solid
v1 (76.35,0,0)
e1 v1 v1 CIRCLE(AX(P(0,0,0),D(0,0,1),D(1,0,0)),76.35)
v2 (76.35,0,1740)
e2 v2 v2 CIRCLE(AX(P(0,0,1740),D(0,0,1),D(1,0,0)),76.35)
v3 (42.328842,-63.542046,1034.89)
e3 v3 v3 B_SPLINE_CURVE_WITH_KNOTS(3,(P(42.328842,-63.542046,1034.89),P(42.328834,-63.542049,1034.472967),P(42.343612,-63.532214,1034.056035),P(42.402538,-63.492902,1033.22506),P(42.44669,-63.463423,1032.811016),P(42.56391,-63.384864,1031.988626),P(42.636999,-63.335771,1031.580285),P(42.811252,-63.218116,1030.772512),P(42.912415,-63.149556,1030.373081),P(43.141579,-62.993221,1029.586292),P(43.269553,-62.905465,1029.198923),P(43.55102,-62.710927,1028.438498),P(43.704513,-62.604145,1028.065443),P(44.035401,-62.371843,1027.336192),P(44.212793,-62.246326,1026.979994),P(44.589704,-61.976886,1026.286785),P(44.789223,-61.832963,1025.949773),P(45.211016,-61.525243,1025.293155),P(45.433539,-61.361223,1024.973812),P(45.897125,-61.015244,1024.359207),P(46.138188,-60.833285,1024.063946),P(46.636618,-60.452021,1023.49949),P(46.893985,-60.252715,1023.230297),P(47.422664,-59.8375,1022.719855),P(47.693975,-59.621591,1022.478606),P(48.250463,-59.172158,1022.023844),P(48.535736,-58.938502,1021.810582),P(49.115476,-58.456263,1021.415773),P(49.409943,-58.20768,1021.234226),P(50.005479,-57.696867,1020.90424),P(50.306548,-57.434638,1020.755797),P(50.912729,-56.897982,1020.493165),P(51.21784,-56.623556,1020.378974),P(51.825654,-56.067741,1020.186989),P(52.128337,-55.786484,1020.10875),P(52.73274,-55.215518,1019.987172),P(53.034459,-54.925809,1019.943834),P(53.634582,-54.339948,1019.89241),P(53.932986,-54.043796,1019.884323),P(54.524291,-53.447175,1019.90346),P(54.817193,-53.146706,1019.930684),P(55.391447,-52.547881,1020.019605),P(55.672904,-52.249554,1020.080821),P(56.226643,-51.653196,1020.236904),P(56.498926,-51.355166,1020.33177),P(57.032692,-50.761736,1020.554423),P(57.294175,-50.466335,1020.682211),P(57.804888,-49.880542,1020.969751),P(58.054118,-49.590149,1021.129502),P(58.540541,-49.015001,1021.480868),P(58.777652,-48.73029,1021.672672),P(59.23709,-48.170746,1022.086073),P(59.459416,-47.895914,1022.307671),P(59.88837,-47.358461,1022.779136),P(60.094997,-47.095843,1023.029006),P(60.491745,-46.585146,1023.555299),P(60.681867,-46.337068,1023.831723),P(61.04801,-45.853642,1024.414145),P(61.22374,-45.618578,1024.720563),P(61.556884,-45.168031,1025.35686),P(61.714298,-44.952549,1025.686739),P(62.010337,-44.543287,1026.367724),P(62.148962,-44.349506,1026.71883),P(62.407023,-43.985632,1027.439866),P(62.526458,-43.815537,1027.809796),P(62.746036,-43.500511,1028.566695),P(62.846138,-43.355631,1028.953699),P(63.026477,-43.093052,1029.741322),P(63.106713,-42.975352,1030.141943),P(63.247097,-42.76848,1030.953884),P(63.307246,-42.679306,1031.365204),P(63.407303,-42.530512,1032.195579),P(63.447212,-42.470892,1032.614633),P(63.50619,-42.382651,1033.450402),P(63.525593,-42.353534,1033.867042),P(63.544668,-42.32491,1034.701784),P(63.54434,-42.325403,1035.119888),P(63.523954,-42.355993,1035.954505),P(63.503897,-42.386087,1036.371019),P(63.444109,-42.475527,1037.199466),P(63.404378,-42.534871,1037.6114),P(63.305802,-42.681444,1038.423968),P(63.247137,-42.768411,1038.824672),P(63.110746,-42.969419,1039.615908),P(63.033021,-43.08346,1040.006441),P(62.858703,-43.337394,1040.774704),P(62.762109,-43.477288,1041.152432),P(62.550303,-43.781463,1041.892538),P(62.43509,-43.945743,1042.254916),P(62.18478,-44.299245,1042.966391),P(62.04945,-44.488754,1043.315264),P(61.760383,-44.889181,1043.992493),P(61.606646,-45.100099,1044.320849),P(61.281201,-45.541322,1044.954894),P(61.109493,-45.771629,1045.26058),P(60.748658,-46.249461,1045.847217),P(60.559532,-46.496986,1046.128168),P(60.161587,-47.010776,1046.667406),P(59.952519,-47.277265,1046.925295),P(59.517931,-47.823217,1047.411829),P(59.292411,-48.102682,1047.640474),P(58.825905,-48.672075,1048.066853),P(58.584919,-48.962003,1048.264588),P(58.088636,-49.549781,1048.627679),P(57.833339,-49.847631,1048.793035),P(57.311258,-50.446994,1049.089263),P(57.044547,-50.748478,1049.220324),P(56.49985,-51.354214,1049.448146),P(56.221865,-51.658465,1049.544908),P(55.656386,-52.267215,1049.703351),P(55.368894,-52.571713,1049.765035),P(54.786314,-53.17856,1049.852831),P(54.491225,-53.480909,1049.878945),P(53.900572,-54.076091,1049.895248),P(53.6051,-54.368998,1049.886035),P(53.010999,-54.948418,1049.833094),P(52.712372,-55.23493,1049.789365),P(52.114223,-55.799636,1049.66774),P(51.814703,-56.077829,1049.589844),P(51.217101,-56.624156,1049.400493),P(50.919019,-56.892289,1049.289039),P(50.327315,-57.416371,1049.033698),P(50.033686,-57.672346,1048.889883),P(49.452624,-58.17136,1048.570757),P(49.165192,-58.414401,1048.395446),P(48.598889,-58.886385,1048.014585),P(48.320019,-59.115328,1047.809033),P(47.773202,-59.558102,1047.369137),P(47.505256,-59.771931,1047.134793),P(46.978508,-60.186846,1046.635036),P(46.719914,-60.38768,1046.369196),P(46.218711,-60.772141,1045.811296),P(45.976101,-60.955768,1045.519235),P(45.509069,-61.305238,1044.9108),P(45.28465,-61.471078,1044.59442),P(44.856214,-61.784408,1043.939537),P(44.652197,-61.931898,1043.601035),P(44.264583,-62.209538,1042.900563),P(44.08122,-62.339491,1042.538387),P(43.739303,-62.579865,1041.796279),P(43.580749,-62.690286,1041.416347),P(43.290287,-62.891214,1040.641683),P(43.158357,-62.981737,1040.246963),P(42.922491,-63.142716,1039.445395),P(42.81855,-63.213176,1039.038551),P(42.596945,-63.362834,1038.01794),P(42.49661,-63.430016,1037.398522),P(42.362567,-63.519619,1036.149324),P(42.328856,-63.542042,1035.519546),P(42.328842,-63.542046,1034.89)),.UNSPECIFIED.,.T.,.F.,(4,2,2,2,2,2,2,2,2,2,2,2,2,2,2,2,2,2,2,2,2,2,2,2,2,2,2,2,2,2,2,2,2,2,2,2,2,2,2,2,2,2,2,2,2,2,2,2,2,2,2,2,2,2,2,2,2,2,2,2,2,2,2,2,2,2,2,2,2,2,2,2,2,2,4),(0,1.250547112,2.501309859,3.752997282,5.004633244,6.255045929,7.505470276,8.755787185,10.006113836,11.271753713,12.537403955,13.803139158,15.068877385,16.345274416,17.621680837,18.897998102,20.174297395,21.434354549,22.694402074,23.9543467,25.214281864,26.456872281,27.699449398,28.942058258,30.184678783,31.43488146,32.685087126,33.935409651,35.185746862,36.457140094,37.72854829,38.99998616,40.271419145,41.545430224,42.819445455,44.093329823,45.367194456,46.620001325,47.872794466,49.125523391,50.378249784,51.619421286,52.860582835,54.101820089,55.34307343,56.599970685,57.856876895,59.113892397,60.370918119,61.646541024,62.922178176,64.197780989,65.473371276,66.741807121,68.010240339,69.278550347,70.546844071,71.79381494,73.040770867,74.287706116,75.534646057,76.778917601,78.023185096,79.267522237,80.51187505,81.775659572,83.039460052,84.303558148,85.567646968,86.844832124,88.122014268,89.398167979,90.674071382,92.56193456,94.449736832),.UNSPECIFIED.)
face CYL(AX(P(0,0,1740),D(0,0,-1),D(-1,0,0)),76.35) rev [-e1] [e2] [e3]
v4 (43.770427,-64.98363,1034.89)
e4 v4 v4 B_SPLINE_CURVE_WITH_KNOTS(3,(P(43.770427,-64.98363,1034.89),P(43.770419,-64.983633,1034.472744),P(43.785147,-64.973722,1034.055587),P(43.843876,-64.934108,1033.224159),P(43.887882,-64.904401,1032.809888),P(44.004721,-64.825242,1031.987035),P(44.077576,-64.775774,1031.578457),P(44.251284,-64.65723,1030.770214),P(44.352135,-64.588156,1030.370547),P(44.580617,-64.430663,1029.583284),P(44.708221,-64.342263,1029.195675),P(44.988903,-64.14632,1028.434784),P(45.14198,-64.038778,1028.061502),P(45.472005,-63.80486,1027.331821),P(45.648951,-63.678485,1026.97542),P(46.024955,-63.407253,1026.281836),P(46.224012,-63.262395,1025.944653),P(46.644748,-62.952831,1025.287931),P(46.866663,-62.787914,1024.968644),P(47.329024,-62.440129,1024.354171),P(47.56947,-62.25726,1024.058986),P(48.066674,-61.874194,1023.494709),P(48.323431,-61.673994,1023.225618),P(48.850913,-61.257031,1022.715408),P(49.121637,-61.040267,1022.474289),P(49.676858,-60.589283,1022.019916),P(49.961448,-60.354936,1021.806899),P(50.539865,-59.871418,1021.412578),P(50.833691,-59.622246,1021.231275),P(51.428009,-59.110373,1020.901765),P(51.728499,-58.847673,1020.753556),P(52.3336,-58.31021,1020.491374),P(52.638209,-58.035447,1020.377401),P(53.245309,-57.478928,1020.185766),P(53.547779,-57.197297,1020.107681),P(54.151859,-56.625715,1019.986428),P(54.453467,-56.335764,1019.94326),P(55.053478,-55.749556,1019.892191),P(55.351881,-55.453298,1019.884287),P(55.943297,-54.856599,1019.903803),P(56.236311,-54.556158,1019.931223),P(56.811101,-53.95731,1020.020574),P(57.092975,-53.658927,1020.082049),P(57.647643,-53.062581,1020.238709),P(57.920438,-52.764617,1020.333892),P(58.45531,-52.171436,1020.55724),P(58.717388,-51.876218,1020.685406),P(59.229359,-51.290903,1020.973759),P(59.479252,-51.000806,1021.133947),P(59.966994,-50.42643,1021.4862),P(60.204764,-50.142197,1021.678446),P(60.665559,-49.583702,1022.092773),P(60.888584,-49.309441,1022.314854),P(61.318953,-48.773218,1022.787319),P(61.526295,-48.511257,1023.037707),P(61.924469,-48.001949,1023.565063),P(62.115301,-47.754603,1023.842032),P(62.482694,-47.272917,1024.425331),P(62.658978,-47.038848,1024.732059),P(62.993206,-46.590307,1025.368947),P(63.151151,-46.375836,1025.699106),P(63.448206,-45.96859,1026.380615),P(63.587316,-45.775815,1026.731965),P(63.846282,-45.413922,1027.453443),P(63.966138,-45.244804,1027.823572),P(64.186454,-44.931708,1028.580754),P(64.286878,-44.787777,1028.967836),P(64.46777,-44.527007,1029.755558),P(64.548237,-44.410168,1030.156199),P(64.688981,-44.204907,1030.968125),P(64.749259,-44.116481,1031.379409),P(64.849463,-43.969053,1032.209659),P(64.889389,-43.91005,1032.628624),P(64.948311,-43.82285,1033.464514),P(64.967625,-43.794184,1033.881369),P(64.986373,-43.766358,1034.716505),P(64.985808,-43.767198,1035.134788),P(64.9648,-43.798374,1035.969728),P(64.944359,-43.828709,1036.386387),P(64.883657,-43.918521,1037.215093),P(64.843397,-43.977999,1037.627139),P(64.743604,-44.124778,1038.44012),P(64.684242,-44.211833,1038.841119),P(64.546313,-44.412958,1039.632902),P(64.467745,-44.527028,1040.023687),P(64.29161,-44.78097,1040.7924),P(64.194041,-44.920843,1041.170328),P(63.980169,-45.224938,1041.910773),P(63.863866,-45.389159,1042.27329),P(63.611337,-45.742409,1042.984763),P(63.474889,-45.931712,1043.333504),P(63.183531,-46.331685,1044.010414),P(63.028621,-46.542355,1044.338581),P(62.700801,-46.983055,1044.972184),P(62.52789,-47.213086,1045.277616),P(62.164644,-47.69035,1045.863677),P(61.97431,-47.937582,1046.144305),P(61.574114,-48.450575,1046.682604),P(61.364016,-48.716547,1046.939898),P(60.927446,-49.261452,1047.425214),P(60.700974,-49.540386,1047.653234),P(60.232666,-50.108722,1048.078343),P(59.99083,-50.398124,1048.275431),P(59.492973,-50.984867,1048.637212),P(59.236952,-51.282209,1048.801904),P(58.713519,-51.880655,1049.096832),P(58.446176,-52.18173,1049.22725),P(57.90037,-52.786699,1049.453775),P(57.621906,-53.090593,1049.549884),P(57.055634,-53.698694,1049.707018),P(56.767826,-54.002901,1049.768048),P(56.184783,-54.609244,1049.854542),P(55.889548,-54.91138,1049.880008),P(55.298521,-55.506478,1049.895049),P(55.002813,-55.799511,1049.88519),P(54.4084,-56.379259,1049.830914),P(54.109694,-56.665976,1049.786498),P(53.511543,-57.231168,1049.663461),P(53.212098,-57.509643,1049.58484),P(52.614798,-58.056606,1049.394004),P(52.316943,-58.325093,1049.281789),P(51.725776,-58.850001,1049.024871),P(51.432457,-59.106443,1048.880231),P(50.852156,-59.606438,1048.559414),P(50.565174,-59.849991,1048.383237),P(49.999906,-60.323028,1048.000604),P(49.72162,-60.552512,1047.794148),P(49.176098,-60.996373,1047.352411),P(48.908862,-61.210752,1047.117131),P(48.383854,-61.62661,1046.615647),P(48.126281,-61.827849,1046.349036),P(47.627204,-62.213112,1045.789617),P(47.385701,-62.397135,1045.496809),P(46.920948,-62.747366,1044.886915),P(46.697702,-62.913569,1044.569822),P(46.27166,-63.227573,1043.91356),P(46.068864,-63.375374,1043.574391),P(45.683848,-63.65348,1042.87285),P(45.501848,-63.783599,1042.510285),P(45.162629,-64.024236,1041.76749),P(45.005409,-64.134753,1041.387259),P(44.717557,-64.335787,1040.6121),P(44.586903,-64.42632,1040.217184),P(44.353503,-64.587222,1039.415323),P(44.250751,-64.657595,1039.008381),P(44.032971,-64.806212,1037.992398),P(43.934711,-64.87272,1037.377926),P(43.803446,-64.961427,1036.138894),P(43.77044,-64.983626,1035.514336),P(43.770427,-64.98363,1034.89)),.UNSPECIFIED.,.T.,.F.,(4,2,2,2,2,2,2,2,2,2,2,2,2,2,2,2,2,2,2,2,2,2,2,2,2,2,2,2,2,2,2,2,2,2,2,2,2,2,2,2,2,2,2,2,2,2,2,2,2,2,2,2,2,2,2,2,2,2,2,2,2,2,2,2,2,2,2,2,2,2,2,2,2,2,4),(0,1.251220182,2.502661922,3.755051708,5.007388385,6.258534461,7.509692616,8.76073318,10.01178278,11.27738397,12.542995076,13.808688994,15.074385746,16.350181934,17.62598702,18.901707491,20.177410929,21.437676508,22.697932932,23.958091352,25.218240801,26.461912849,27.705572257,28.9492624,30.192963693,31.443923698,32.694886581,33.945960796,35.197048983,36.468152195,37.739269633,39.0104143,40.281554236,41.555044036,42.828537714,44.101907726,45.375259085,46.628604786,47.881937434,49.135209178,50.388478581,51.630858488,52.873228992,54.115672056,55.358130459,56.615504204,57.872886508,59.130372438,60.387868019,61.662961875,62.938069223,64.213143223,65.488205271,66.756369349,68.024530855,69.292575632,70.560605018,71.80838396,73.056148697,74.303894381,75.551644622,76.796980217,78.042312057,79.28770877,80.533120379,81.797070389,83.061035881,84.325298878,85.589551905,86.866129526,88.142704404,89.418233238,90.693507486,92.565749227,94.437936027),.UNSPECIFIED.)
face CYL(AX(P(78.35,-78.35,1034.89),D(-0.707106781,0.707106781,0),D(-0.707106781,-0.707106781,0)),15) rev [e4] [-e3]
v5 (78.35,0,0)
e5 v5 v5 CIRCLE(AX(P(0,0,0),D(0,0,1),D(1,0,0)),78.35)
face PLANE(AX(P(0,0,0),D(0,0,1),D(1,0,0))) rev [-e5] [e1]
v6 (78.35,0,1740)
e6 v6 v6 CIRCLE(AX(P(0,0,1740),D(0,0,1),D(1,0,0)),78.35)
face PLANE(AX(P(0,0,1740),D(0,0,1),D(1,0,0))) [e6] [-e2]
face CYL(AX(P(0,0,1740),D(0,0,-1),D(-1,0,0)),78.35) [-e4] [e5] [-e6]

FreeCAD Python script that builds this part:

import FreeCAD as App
import Part
import Sketcher
from FreeCAD import Vector
Q = App.Units.Quantity

doc = App.newDocument("Part")
body = doc.addObject("PartDesign::Body", "Body")

sketch1 = body.newObject("Sketcher::SketchObject", "Sketch")
sketch1.AttachmentSupport = (doc.getObject("XY_Plane"), [""])
sketch1.MapMode = "FlatFace"
sketch1.addGeometry([
    Part.Circle(Vector(0, 0, 0), Vector(0, 0, 1), 78),
    Part.Circle(Vector(0, 0, 0), Vector(0, 0, 1), 76),
], False)
sketch1.addConstraint([
    Sketcher.Constraint("Coincident", 0, 3, -1, 1),
    Sketcher.Constraint("Coincident", 1, 3, -1, 1),
    Sketcher.Constraint("Diameter", 0, Q("156.7 mm")),
    Sketcher.Constraint("Diameter", 1, Q("152.7 mm")),
])
pad1 = body.newObject("PartDesign::Pad", "Pad")
pad1.Profile = sketch1
pad1.Length = 1740

sketch2 = body.newObject("Sketcher::SketchObject", "Sketch001")
sketch2.Placement = App.Placement(Vector(0, 0, 0), App.Rotation(Vector(0, 0, -1), Vector(0.707106781, 0.707106781, 0), Vector(0.707106781, -0.707106781, 0), "ZXY"))
sketch2.addGeometry(Part.Circle(Vector(-1035, 0, 0), Vector(0, 0, 1), 15), False)
sketch2.addConstraint([
    Sketcher.Constraint("PointOnObject", 0, 3, -1),
    Sketcher.Constraint("Diameter", 0, Q("30 mm")),
    Sketcher.Constraint("DistanceX", 0, 3, -1, 1, Q("1034.89 mm")),
])
pocket1 = body.newObject("PartDesign::Pocket", "Pocket")
pocket1.Profile = sketch2
pocket1.Type = "ThroughAll"
pocket1.Reversed = True

doc.recompute()
